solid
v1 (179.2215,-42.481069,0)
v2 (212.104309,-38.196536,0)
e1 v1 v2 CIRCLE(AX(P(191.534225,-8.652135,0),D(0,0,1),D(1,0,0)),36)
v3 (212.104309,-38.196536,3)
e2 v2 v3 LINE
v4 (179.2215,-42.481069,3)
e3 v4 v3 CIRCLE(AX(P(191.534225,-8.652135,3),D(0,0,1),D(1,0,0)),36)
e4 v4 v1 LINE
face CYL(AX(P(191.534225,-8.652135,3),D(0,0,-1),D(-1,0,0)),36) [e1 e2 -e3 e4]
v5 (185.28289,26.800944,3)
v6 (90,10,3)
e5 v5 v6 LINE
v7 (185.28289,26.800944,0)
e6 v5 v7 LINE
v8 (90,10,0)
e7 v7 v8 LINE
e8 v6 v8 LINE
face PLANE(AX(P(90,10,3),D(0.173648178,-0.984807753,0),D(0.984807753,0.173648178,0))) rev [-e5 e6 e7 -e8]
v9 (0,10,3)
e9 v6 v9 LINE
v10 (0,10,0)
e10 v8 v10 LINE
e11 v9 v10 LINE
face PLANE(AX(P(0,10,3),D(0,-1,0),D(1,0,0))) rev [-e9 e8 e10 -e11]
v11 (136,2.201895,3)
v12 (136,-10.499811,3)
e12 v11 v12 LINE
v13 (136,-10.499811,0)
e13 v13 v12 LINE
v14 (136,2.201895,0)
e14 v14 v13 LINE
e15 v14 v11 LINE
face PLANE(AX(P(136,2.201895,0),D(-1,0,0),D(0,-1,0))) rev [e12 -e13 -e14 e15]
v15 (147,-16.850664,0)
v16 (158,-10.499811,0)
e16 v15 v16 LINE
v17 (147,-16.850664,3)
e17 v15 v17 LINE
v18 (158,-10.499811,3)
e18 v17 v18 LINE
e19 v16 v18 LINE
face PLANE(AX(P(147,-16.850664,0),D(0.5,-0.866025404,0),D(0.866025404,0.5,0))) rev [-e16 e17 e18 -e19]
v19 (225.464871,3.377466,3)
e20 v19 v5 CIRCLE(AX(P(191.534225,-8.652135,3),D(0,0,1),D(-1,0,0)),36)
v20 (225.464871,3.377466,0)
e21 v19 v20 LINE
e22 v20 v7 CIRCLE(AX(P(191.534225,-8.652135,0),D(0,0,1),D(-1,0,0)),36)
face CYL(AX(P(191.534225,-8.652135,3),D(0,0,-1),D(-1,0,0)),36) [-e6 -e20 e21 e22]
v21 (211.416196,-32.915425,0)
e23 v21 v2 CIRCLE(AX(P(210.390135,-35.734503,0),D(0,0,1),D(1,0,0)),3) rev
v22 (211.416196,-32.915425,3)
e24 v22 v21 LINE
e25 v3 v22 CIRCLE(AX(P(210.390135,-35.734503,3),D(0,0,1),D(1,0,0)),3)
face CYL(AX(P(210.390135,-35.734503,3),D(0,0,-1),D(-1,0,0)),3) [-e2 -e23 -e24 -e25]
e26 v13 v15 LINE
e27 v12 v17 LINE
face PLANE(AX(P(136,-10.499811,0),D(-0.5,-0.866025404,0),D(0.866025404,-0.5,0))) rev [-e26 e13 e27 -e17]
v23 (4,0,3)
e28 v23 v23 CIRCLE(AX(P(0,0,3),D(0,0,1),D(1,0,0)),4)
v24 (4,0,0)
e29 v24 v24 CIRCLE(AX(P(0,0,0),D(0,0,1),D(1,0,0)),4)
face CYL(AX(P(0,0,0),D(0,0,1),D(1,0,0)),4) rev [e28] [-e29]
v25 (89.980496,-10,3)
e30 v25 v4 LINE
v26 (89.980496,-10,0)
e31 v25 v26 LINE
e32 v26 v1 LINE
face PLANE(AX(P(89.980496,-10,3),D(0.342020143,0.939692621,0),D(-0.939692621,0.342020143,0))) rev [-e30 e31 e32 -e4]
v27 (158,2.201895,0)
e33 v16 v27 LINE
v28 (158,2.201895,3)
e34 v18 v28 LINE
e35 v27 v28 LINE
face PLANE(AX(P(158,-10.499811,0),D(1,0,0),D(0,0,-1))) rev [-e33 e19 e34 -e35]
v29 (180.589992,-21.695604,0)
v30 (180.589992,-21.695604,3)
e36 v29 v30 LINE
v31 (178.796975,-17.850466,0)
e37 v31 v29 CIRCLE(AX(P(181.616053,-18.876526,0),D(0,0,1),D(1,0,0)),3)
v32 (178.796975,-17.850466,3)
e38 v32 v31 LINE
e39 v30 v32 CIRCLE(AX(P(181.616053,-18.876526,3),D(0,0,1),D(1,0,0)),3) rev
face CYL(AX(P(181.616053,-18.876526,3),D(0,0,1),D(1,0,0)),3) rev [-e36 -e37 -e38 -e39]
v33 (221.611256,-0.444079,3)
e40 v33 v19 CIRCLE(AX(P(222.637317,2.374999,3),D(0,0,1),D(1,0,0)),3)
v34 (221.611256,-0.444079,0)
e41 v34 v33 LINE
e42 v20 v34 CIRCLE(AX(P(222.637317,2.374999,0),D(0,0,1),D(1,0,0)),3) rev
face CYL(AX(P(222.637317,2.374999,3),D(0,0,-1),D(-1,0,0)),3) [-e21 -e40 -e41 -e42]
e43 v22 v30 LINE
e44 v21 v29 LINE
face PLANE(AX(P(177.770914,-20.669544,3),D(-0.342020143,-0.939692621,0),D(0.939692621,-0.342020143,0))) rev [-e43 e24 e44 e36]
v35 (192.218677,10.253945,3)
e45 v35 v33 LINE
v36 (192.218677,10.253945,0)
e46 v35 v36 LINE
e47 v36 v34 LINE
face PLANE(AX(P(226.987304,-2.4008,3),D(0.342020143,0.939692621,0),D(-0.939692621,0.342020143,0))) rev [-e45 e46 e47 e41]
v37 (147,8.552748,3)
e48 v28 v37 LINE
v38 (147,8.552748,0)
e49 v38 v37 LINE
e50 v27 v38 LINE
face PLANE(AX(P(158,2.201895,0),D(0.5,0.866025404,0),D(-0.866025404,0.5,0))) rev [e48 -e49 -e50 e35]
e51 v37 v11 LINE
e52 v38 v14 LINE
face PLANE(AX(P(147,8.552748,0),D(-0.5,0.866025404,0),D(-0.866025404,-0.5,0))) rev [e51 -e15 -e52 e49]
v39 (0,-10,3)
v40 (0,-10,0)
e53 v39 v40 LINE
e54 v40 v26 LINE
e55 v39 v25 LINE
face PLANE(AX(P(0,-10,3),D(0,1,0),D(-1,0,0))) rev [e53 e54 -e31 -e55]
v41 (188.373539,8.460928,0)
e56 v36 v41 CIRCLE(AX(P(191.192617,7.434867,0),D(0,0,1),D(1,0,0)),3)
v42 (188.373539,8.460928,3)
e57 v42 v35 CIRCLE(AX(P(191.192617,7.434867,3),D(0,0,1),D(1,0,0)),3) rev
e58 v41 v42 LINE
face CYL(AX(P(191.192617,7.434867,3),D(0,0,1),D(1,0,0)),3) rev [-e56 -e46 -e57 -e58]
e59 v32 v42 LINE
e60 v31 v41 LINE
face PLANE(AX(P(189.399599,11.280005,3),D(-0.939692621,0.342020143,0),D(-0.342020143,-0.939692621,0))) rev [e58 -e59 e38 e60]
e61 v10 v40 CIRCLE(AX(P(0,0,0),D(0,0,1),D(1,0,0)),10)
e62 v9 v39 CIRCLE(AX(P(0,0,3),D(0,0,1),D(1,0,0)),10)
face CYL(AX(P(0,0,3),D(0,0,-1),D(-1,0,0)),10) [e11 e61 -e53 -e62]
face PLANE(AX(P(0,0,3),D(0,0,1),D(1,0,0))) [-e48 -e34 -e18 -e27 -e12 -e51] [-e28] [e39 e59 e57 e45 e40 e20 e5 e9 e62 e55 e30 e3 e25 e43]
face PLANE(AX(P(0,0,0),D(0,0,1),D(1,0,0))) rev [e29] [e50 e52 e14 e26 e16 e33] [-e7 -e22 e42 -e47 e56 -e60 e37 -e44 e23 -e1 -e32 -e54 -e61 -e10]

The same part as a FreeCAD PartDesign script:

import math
import FreeCAD as App
import Part
import Sketcher
Q = App.Units.Quantity


def edges_at(feature, points):
    """Names of the edges that pass closest to the given points."""
    edges = feature.Shape.Edges
    near = lambda p: min(range(len(edges)), key=lambda i: edges[i].distToShape(Part.Vertex(*p))[0])
    return sorted({f"Edge{near(p) + 1}" for p in points})


def add_polygon(sketch, points):
    """Adds a closed chain of lines whose ends are joined by coincident constraints."""
    first, n = sketch.GeometryCount, len(points)
    for a, b in zip(points, points[1:] + points[:1]):
        sketch.addGeometry(Part.LineSegment(App.Vector(*a, 0), App.Vector(*b, 0)), False)
    for i in range(n):
        sketch.addConstraint(Sketcher.Constraint("Coincident", first + i, 2, first + (i + 1) % n, 1))

doc = App.newDocument("Part")
body = doc.addObject("PartDesign::Body", "Body")

# Sketch on XY plane
sketch1 = doc.addObject("Sketcher::SketchObject", "Sketch")
body.addObject(sketch1)
sketch1.AttachmentSupport = (doc.XY_Plane, [""])
sketch1.MapMode = "FlatFace"
sketch1.addGeometry(Part.LineSegment(App.Vector(90, 10, 0), App.Vector(0, 10, 0)), False)
sketch1.addGeometry(Part.ArcOfCircle(Part.Circle(App.Vector(0, 0, 0), App.Vector(0, 0, 1), 10), math.radians(90), math.radians(270)), False)
sketch1.addGeometry(Part.LineSegment(App.Vector(0, -10, 0), App.Vector(89.980496, -10, 0)), False)
sketch1.addGeometry(Part.LineSegment(App.Vector(89.980496, -10, 0), App.Vector(179.2215, -42.481069, 0)), False)
sketch1.addGeometry(Part.ArcOfCircle(Part.Circle(App.Vector(191.534225, -8.652135, 0), App.Vector(0, 0, 1), 36), math.radians(-110), math.radians(-46.3878)), False)
sketch1.addGeometry(Part.LineSegment(App.Vector(216.366079, -34.717035, 0), App.Vector(177.770914, -20.669544, 0)), False)
sketch1.addGeometry(Part.LineSegment(App.Vector(177.770914, -20.669544, 0), App.Vector(189.399599, 11.280005, 0)), False)
sketch1.addGeometry(Part.LineSegment(App.Vector(189.399599, 11.280005, 0), App.Vector(226.987304, -2.4008, 0)), False)
sketch1.addGeometry(Part.ArcOfCircle(Part.Circle(App.Vector(191.534225, -8.652135, 0), App.Vector(0, 0, 1), 36), math.radians(10), math.radians(100)), False)
sketch1.addGeometry(Part.LineSegment(App.Vector(185.28289, 26.800944, 0), App.Vector(90, 10, 0)), False)
sketch1.addConstraint(Sketcher.Constraint("Tangent", 0, 2, 1, 1))
sketch1.addConstraint(Sketcher.Constraint("Tangent", 1, 2, 2, 1))
sketch1.addConstraint(Sketcher.Constraint("Coincident", 2, 2, 3, 1))
sketch1.addConstraint(Sketcher.Constraint("Tangent", 3, 2, 4, 1))
sketch1.addConstraint(Sketcher.Constraint("Coincident", 4, 2, 5, 1))
sketch1.addConstraint(Sketcher.Constraint("Coincident", 5, 2, 6, 1))
sketch1.addConstraint(Sketcher.Constraint("Coincident", 6, 2, 7, 1))
sketch1.addConstraint(Sketcher.Constraint("Coincident", 7, 2, 8, 1))
sketch1.addConstraint(Sketcher.Constraint("Tangent", 8, 2, 9, 1))
sketch1.addConstraint(Sketcher.Constraint("Coincident", 9, 2, 0, 1))
sketch1.addConstraint(Sketcher.Constraint("Horizontal", 0))
sketch1.addConstraint(Sketcher.Constraint("Horizontal", 2))
sketch1.addConstraint(Sketcher.Constraint("Coincident", 1, 3, -1, 1))
sketch1.addConstraint(Sketcher.Constraint("Coincident", 8, 3, 4, 3))
sketch1.addConstraint(Sketcher.Constraint("Equal", 4, 8))
sketch1.addConstraint(Sketcher.Constraint("Parallel", 3, 5))
sketch1.addConstraint(Sketcher.Constraint("Perpendicular", 5, 6))
sketch1.addConstraint(Sketcher.Constraint("Perpendicular", 6, 7))
sketch1.addConstraint(Sketcher.Constraint("Radius", 1, 10.0))
sketch1.addConstraint(Sketcher.Constraint("Radius", 4, 36.0))
sketch1.addConstraint(Sketcher.Constraint("DistanceX", 0, 2, 0, 1, 90.0))
sketch1.addConstraint(Sketcher.Constraint("Angle", 3, Q("-20 deg")))
sketch1.addConstraint(Sketcher.Constraint("Angle", 9, Q("-170 deg")))
sketch1.addConstraint(Sketcher.Constraint("Distance", 6, 34.0))
sketch1.addConstraint(Sketcher.Constraint("Distance", 7, 40.0))
sketch1.addConstraint(Sketcher.Constraint("DistanceX", -1, 1, 3, 2, 179.2215))
sketch1.addConstraint(Sketcher.Constraint("DistanceX", -1, 1, 6, 2, 189.399599))
pad1 = doc.addObject("PartDesign::Pad", "Pad")
body.addObject(pad1)
pad1.Profile = sketch1
pad1.Length = 3

# Sketch on XY plane
sketch2 = doc.addObject("Sketcher::SketchObject", "Sketch001")
body.addObject(sketch2)
sketch2.AttachmentSupport = (doc.XY_Plane, [""])
sketch2.MapMode = "FlatFace"
sketch2.AttachmentOffset = App.Placement(App.Vector(0, 0, 3), App.Rotation())
sketch2.addGeometry(Part.Circle(App.Vector(0, 0, 0), App.Vector(0, 0, 1), 4), False)  # 0
add_polygon(sketch2, [(147, -16.850664), (158, -10.499811), (158, 2.201895), (147, 8.552748), (136, 2.201895), (136, -10.499811)])  # lines 1-6
sketch2.addConstraint(Sketcher.Constraint("Vertical", 2))
sketch2.addConstraint(Sketcher.Constraint("Vertical", 5))
sketch2.addConstraint(Sketcher.Constraint("Coincident", 0, 3, -1, 1))
sketch2.addConstraint(Sketcher.Constraint("Parallel", 1, 4))
sketch2.addConstraint(Sketcher.Constraint("Parallel", 3, 6))
sketch2.addConstraint(Sketcher.Constraint("Horizontal", 2, 2, 4, 2))
sketch2.addConstraint(Sketcher.Constraint("Horizontal", 1, 2, 5, 2))
sketch2.addConstraint(Sketcher.Constraint("Vertical", 3, 2, 6, 2))
sketch2.addConstraint(Sketcher.Constraint("Diameter", 0, 8.0))
sketch2.addConstraint(Sketcher.Constraint("Angle", 1, Q("30 deg")))
sketch2.addConstraint(Sketcher.Constraint("DistanceX", -1, 1, 1, 2, 158.0))
sketch2.addConstraint(Sketcher.Constraint("DistanceX", -1, 1, 3, 2, 147.0))
sketch2.addConstraint(Sketcher.Constraint("DistanceY", 2, 1, 2, 2, 12.701706))
sketch2.addConstraint(Sketcher.Constraint("DistanceY", 1, 2, -1, 1, 10.499811))
pocket1 = doc.addObject("PartDesign::Pocket", "Pocket")
body.addObject(pocket1)
pocket1.Profile = sketch2
pocket1.Length = 3
doc.recompute()

fillet = doc.addObject("PartDesign::Fillet", "Fillet")
body.addObject(fillet)
fillet.Base = (pocket1, edges_at(pocket1, [(216.366, -34.717, 1.5)]))
fillet.Radius = 3
doc.recompute()

fillet2 = doc.addObject("PartDesign::Fillet", "Fillet001")
body.addObject(fillet2)
fillet2.Base = (fillet, edges_at(fillet, [(226.987, -2.401, 1.5)]))
fillet2.Radius = 3
doc.recompute()

fillet3 = doc.addObject("PartDesign::Fillet", "Fillet002")
body.addObject(fillet3)
fillet3.Base = (fillet2, edges_at(fillet2, [(177.771, -20.67, 1.5)]))
fillet3.Radius = 3
doc.recompute()

fillet4 = doc.addObject("PartDesign::Fillet", "Fillet003")
body.addObject(fillet4)
fillet4.Base = (fillet3, edges_at(fillet3, [(189.4, 11.28, 1.5)]))
fillet4.Radius = 3

doc.recompute()
